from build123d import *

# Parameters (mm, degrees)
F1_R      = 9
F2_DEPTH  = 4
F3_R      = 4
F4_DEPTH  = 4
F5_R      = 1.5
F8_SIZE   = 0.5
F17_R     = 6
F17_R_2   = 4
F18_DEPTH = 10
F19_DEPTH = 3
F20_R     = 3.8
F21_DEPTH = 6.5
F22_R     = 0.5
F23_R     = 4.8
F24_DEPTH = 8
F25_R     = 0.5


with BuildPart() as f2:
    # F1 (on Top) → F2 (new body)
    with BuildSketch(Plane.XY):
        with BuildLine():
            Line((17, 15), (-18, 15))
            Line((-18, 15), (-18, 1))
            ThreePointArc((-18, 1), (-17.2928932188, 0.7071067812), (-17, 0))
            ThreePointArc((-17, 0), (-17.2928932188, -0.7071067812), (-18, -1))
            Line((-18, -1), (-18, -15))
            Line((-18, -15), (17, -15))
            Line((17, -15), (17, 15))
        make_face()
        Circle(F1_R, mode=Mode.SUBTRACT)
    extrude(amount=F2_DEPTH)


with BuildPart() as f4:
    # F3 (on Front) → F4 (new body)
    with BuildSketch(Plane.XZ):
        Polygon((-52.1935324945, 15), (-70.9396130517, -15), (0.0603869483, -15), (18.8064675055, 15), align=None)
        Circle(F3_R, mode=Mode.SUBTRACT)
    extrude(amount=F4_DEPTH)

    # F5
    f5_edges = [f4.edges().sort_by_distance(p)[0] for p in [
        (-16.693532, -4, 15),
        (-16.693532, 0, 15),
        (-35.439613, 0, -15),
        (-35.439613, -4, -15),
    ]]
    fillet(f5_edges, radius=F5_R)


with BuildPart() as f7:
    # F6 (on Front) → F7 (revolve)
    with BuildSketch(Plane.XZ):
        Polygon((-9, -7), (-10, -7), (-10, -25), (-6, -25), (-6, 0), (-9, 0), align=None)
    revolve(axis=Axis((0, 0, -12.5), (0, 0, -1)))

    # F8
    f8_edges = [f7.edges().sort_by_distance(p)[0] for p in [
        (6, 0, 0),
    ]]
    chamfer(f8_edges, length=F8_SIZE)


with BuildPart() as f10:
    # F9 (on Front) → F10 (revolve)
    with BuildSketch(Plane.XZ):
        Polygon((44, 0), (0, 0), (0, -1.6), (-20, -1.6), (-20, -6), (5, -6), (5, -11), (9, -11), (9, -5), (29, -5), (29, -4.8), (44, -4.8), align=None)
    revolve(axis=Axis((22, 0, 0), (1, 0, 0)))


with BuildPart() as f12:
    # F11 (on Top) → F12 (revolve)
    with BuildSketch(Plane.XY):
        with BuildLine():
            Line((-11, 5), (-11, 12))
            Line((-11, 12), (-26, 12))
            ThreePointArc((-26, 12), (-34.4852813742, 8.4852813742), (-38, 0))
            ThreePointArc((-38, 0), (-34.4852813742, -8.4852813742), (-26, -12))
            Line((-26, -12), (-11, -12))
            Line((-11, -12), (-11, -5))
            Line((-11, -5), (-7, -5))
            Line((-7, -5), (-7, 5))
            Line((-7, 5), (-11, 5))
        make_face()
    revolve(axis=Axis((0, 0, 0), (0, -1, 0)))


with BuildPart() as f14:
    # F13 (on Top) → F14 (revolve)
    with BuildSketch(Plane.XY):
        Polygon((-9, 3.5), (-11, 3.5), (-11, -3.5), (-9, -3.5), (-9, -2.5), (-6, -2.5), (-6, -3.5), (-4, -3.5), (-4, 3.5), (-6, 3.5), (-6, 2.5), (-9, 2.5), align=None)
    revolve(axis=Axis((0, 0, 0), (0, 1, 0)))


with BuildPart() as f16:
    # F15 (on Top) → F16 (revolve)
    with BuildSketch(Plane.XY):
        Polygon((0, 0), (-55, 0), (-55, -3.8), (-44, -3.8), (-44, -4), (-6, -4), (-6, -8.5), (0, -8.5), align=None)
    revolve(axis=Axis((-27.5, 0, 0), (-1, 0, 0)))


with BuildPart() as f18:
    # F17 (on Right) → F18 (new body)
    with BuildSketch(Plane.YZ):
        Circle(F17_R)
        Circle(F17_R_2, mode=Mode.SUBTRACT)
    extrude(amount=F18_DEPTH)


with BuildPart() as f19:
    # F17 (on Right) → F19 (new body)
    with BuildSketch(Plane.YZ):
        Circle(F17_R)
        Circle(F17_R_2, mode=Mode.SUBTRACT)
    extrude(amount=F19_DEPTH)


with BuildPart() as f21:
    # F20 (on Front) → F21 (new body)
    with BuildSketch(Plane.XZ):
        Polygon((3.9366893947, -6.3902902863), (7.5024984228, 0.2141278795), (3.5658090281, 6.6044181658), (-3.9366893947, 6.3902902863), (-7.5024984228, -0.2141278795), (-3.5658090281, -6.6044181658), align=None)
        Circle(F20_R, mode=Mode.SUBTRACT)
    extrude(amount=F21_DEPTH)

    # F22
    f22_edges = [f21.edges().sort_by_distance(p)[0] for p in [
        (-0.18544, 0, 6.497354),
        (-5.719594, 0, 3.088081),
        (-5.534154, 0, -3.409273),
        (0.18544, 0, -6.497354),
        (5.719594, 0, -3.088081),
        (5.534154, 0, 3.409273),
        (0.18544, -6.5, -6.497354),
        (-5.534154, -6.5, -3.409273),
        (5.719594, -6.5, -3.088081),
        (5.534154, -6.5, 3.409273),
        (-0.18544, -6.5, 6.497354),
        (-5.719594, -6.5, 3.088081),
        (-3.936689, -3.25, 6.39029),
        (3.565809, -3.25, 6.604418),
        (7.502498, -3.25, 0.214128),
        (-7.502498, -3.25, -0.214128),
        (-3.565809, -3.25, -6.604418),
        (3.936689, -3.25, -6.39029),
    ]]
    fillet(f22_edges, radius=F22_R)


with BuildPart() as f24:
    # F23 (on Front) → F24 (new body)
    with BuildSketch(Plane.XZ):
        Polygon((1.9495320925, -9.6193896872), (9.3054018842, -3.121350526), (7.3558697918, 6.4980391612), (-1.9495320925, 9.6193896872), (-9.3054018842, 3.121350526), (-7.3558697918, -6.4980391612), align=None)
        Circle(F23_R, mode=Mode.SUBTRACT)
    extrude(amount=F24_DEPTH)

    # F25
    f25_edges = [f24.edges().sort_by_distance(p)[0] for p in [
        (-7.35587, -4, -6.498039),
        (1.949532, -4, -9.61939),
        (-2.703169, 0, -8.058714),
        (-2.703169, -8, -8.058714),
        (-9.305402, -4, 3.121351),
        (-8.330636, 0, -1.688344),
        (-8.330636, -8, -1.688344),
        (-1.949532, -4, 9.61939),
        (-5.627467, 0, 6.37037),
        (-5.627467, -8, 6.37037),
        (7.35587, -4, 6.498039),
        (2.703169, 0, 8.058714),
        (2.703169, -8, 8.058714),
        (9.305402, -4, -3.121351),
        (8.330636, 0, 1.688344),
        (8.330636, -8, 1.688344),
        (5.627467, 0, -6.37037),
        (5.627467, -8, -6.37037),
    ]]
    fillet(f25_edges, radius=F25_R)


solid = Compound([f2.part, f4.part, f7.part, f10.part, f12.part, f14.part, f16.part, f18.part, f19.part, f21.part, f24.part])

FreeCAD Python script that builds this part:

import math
import FreeCAD as App
import Part
import Sketcher

V = App.Vector
Q = App.Units.Quantity


def edges_at(feature, points):
    """Names of the edges that pass closest to the given points."""
    edges = feature.Shape.Edges
    near = lambda p: min(range(len(edges)), key=lambda i: edges[i].distToShape(Part.Vertex(*p))[0])
    return sorted({f"Edge{near(p) + 1}" for p in points})

doc = App.newDocument("Part")
body = doc.addObject("PartDesign::Body", "Body")

sketch1 = body.newObject("Sketcher::SketchObject", "Sketch")
sketch1.AttachmentSupport = (doc.getObject("XY_Plane"), [""])
sketch1.MapMode = "FlatFace"
sketch1.addGeometry([
    Part.LineSegment(V(17, 15, 0), V(-18, 15, 0)),
    Part.LineSegment(V(-18, 15, 0), V(-18, 1, 0)),
    Part.ArcOfCircle(Part.Circle(V(-18, 0, 0), V(0, 0, 1), 1), math.radians(0), math.radians(90)),
    Part.ArcOfCircle(Part.Circle(V(-18, 0, 0), V(0, 0, 1), 1), math.radians(-90), math.radians(0)),
    Part.LineSegment(V(-18, -1, 0), V(-18, -15, 0)),
    Part.LineSegment(V(-18, -15, 0), V(17, -15, 0)),
    Part.LineSegment(V(17, -15, 0), V(17, 15, 0)),
    Part.Circle(V(0, 0, 0), V(0, 0, 1), 9),
], False)
sketch1.addConstraint([
    Sketcher.Constraint("Coincident", 0, 2, 1, 1),
    Sketcher.Constraint("Coincident", 1, 2, 2, 2),
    Sketcher.Constraint("Tangent", 2, 1, 3, 2),
    Sketcher.Constraint("Coincident", 3, 1, 4, 1),
    Sketcher.Constraint("Coincident", 4, 2, 5, 1),
    Sketcher.Constraint("Coincident", 5, 2, 6, 1),
    Sketcher.Constraint("Coincident", 6, 2, 0, 1),
    Sketcher.Constraint("Horizontal", 0),
    Sketcher.Constraint("Vertical", 1),
    Sketcher.Constraint("Vertical", 4),
    Sketcher.Constraint("Horizontal", 5),
    Sketcher.Constraint("Vertical", 6),
    Sketcher.Constraint("Coincident", 7, 3, -1, 1),
    Sketcher.Constraint("Equal", 2, 3),
    Sketcher.Constraint("Symmetric", 1, 2, 3, 1, -1),
    Sketcher.Constraint("PointOnObject", 2, 1, -1),
    Sketcher.Constraint("Vertical", 3, 3, 0, 2),
    Sketcher.Constraint("Equal", 1, 4),
    Sketcher.Constraint("Diameter", 7, 18.0),
    Sketcher.Constraint("Radius", 2, 1.0),
    Sketcher.Constraint("DistanceX", 0, 2, 0, 1, 35.0),
    Sketcher.Constraint("DistanceY", 1, 2, 1, 1, 14.0),
    Sketcher.Constraint("DistanceX", 2, 3, -1, 1, 18.0),
])
pad1 = body.newObject("PartDesign::Pad", "Pad")
pad1.Profile = sketch1
pad1.Length = 4
body2 = doc.addObject("PartDesign::Body", "Body001")

sketch2 = body2.newObject("Sketcher::SketchObject", "Sketch001")
sketch2.AttachmentSupport = (doc.getObject("XZ_Plane001"), [""])
sketch2.MapMode = "FlatFace"
sketch2.addGeometry([
    Part.LineSegment(V(-52.193532, 15, 0), V(-70.939613, -15, 0)),
    Part.LineSegment(V(-70.939613, -15, 0), V(0.060387, -15, 0)),
    Part.LineSegment(V(0.060387, -15, 0), V(18.806468, 15, 0)),
    Part.LineSegment(V(18.806468, 15, 0), V(-52.193532, 15, 0)),
    Part.Circle(V(0, 0, 0), V(0, 0, 1), 4),
], False)
sketch2.addConstraint([
    Sketcher.Constraint("Coincident", 0, 2, 1, 1),
    Sketcher.Constraint("Coincident", 1, 2, 2, 1),
    Sketcher.Constraint("Coincident", 2, 2, 3, 1),
    Sketcher.Constraint("Coincident", 3, 2, 0, 1),
    Sketcher.Constraint("Horizontal", 1),
    Sketcher.Constraint("Horizontal", 3),
    Sketcher.Constraint("Coincident", 4, 3, -1, 1),
    Sketcher.Constraint("Parallel", 0, 2),
    Sketcher.Constraint("Diameter", 4, 8.0),
    Sketcher.Constraint("DistanceX", 1, 1, 1, 2, 71.0),
    Sketcher.Constraint("Angle", 0, Q("-122 deg")),
    Sketcher.Constraint("DistanceY", 0, 2, -1, 1, 15.0),
    Sketcher.Constraint("DistanceY", -1, 1, 2, 2, 15.0),
    Sketcher.Constraint("DistanceX", 0, 2, -1, 1, 70.939613),
])
pad2 = body2.newObject("PartDesign::Pad", "Pad001")
pad2.Profile = sketch2
pad2.Length = 4
doc.recompute()

fillet = body2.newObject("PartDesign::Fillet", "Fillet")
fillet.Base = (pad2, edges_at(pad2, [
    (-16.694, -4, 15),
    (-16.694, 0, 15),
    (-35.44, 0, -15),
    (-35.44, -4, -15),
]))
fillet.Radius = 1.5
body3 = doc.addObject("PartDesign::Body", "Body002")

sketch3 = body3.newObject("Sketcher::SketchObject", "Sketch002")
sketch3.AttachmentSupport = (doc.getObject("XZ_Plane002"), [""])
sketch3.MapMode = "FlatFace"
sketch3.addGeometry([
    Part.LineSegment(V(-9, -7, 0), V(-10, -7, 0)),
    Part.LineSegment(V(-10, -7, 0), V(-10, -25, 0)),
    Part.LineSegment(V(-10, -25, 0), V(-6, -25, 0)),
    Part.LineSegment(V(-6, -25, 0), V(-6, 0, 0)),
    Part.LineSegment(V(-6, 0, 0), V(-9, 0, 0)),
    Part.LineSegment(V(-9, 0, 0), V(-9, -7, 0)),
], False)
sketch3.addConstraint([
    Sketcher.Constraint("Coincident", 0, 2, 1, 1),
    Sketcher.Constraint("Coincident", 1, 2, 2, 1),
    Sketcher.Constraint("Coincident", 2, 2, 3, 1),
    Sketcher.Constraint("Coincident", 3, 2, 4, 1),
    Sketcher.Constraint("Coincident", 4, 2, 5, 1),
    Sketcher.Constraint("Coincident", 5, 2, 0, 1),
    Sketcher.Constraint("Horizontal", 0),
    Sketcher.Constraint("Vertical", 1),
    Sketcher.Constraint("Horizontal", 2),
    Sketcher.Constraint("Vertical", 3),
    Sketcher.Constraint("Horizontal", 4),
    Sketcher.Constraint("Vertical", 5),
    Sketcher.Constraint("PointOnObject", 3, 2, -1),
    Sketcher.Constraint("DistanceX", 0, 2, 0, 1, 1.0),
    Sketcher.Constraint("DistanceX", 2, 1, 2, 2, 4.0),
    Sketcher.Constraint("DistanceY", 1, 2, 1, 1, 18.0),
    Sketcher.Constraint("DistanceY", 3, 1, 3, 2, 25.0),
    Sketcher.Constraint("DistanceX", 0, 2, -1, 1, 10.0),
])
revolution = body3.newObject("PartDesign::Revolution", "Revolution")
revolution.Profile = sketch3
revolution.ReferenceAxis = (sketch3, ["V_Axis"])
revolution.Angle = 360
doc.recompute()

chamfer = body3.newObject("PartDesign::Chamfer", "Chamfer")
chamfer.Base = (revolution, edges_at(revolution, [(6, 0, 0)]))
chamfer.Size = 0.5
body4 = doc.addObject("PartDesign::Body", "Body003")

sketch4 = body4.newObject("Sketcher::SketchObject", "Sketch003")
sketch4.AttachmentSupport = (doc.getObject("XZ_Plane003"), [""])
sketch4.MapMode = "FlatFace"
sketch4.addGeometry([
    Part.LineSegment(V(44, 0, 0), V(0, 0, 0)),
    Part.LineSegment(V(0, 0, 0), V(0, -1.6, 0)),
    Part.LineSegment(V(0, -1.6, 0), V(-20, -1.6, 0)),
    Part.LineSegment(V(-20, -1.6, 0), V(-20, -6, 0)),
    Part.LineSegment(V(-20, -6, 0), V(5, -6, 0)),
    Part.LineSegment(V(5, -6, 0), V(5, -11, 0)),
    Part.LineSegment(V(5, -11, 0), V(9, -11, 0)),
    Part.LineSegment(V(9, -11, 0), V(9, -5, 0)),
    Part.LineSegment(V(9, -5, 0), V(29, -5, 0)),
    Part.LineSegment(V(29, -5, 0), V(29, -4.8, 0)),
    Part.LineSegment(V(29, -4.8, 0), V(44, -4.8, 0)),
    Part.LineSegment(V(44, -4.8, 0), V(44, 0, 0)),
], False)
sketch4.addConstraint([
    Sketcher.Constraint("Coincident", 0, 2, 1, 1),
    Sketcher.Constraint("Coincident", 1, 2, 2, 1),
    Sketcher.Constraint("Coincident", 2, 2, 3, 1),
    Sketcher.Constraint("Coincident", 3, 2, 4, 1),
    Sketcher.Constraint("Coincident", 4, 2, 5, 1),
    Sketcher.Constraint("Coincident", 5, 2, 6, 1),
    Sketcher.Constraint("Coincident", 6, 2, 7, 1),
    Sketcher.Constraint("Coincident", 7, 2, 8, 1),
    Sketcher.Constraint("Coincident", 8, 2, 9, 1),
    Sketcher.Constraint("Coincident", 9, 2, 10, 1),
    Sketcher.Constraint("Coincident", 10, 2, 11, 1),
    Sketcher.Constraint("Coincident", 11, 2, 0, 1),
    Sketcher.Constraint("Horizontal", 0),
    Sketcher.Constraint("Vertical", 1),
    Sketcher.Constraint("Horizontal", 2),
    Sketcher.Constraint("Vertical", 3),
    Sketcher.Constraint("Horizontal", 4),
    Sketcher.Constraint("Vertical", 5),
    Sketcher.Constraint("Horizontal", 6),
    Sketcher.Constraint("Vertical", 7),
    Sketcher.Constraint("Horizontal", 8),
    Sketcher.Constraint("Vertical", 9),
    Sketcher.Constraint("Horizontal", 10),
    Sketcher.Constraint("Vertical", 11),
    Sketcher.Constraint("Coincident", 0, 2, -1, 1),
    Sketcher.Constraint("Equal", 2, 8),
    Sketcher.Constraint("DistanceX", 0, 2, 0, 1, 44.0),
    Sketcher.Constraint("DistanceX", 2, 2, 2, 1, 20.0),
    Sketcher.Constraint("DistanceX", 4, 1, 4, 2, 25.0),
    Sketcher.Constraint("DistanceX", 6, 1, 6, 2, 4.0),
    Sketcher.Constraint("DistanceY", 5, 2, 5, 1, 5.0),
    Sketcher.Constraint("DistanceY", 7, 1, 7, 2, 6.0),
    Sketcher.Constraint("DistanceY", 1, 2, 1, 1, 1.6),
    Sketcher.Constraint("DistanceY", 3, 2, 3, 1, 4.4),
    Sketcher.Constraint("DistanceY", 9, 1, 9, 2, 0.2),
])
revolution2 = body4.newObject("PartDesign::Revolution", "Revolution001")
revolution2.Profile = sketch4
revolution2.ReferenceAxis = (sketch4, ["H_Axis"])
revolution2.Angle = 360
body5 = doc.addObject("PartDesign::Body", "Body004")

sketch5 = body5.newObject("Sketcher::SketchObject", "Sketch004")
sketch5.AttachmentSupport = (doc.getObject("XY_Plane004"), [""])
sketch5.MapMode = "FlatFace"
sketch5.addGeometry([
    Part.LineSegment(V(-11, 5, 0), V(-11, 12, 0)),
    Part.LineSegment(V(-11, 12, 0), V(-26, 12, 0)),
    Part.ArcOfCircle(Part.Circle(V(-26, 0, 0), V(0, 0, 1), 12), math.radians(90), math.radians(180)),
    Part.ArcOfCircle(Part.Circle(V(-26, 0, 0), V(0, 0, 1), 12), math.radians(180), math.radians(270)),
    Part.LineSegment(V(-26, -12, 0), V(-11, -12, 0)),
    Part.LineSegment(V(-11, -12, 0), V(-11, -5, 0)),
    Part.LineSegment(V(-11, -5, 0), V(-7, -5, 0)),
    Part.LineSegment(V(-7, -5, 0), V(-7, 5, 0)),
    Part.LineSegment(V(-7, 5, 0), V(-11, 5, 0)),
], False)
sketch5.addConstraint([
    Sketcher.Constraint("Coincident", 0, 2, 1, 1),
    Sketcher.Constraint("Tangent", 1, 2, 2, 1),
    Sketcher.Constraint("Tangent", 2, 2, 3, 1),
    Sketcher.Constraint("Tangent", 3, 2, 4, 1),
    Sketcher.Constraint("Coincident", 4, 2, 5, 1),
    Sketcher.Constraint("Coincident", 5, 2, 6, 1),
    Sketcher.Constraint("Coincident", 6, 2, 7, 1),
    Sketcher.Constraint("Coincident", 7, 2, 8, 1),
    Sketcher.Constraint("Coincident", 8, 2, 0, 1),
    Sketcher.Constraint("Vertical", 0),
    Sketcher.Constraint("Horizontal", 1),
    Sketcher.Constraint("Horizontal", 4),
    Sketcher.Constraint("Vertical", 5),
    Sketcher.Constraint("Horizontal", 6),
    Sketcher.Constraint("Vertical", 7),
    Sketcher.Constraint("Horizontal", 8),
    Sketcher.Constraint("Equal", 2, 3),
    Sketcher.Constraint("Symmetric", 0, 2, 4, 2, -1),
    Sketcher.Constraint("PointOnObject", 2, 2, -1),
    Sketcher.Constraint("Equal", 0, 5),
    Sketcher.Constraint("Radius", 2, 12.0),
    Sketcher.Constraint("DistanceX", 1, 2, 1, 1, 15.0),
    Sketcher.Constraint("DistanceX", 6, 1, 6, 2, 4.0),
    Sketcher.Constraint("DistanceY", 0, 1, 0, 2, 7.0),
    Sketcher.Constraint("DistanceX", 2, 3, -1, 1, 26.0),
])
revolution3 = body5.newObject("PartDesign::Revolution", "Revolution002")
revolution3.Profile = sketch5
revolution3.ReferenceAxis = (sketch5, ["V_Axis"])
revolution3.Angle = 360
body6 = doc.addObject("PartDesign::Body", "Body005")

sketch6 = body6.newObject("Sketcher::SketchObject", "Sketch005")
sketch6.AttachmentSupport = (doc.getObject("XY_Plane005"), [""])
sketch6.MapMode = "FlatFace"
sketch6.addGeometry([
    Part.LineSegment(V(-9, 3.5, 0), V(-11, 3.5, 0)),
    Part.LineSegment(V(-11, 3.5, 0), V(-11, -3.5, 0)),
    Part.LineSegment(V(-11, -3.5, 0), V(-9, -3.5, 0)),
    Part.LineSegment(V(-9, -3.5, 0), V(-9, -2.5, 0)),
    Part.LineSegment(V(-9, -2.5, 0), V(-6, -2.5, 0)),
    Part.LineSegment(V(-6, -2.5, 0), V(-6, -3.5, 0)),
    Part.LineSegment(V(-6, -3.5, 0), V(-4, -3.5, 0)),
    Part.LineSegment(V(-4, -3.5, 0), V(-4, 3.5, 0)),
    Part.LineSegment(V(-4, 3.5, 0), V(-6, 3.5, 0)),
    Part.LineSegment(V(-6, 3.5, 0), V(-6, 2.5, 0)),
    Part.LineSegment(V(-6, 2.5, 0), V(-9, 2.5, 0)),
    Part.LineSegment(V(-9, 2.5, 0), V(-9, 3.5, 0)),
], False)
sketch6.addConstraint([
    Sketcher.Constraint("Coincident", 0, 2, 1, 1),
    Sketcher.Constraint("Coincident", 1, 2, 2, 1),
    Sketcher.Constraint("Coincident", 2, 2, 3, 1),
    Sketcher.Constraint("Coincident", 3, 2, 4, 1),
    Sketcher.Constraint("Coincident", 4, 2, 5, 1),
    Sketcher.Constraint("Coincident", 5, 2, 6, 1),
    Sketcher.Constraint("Coincident", 6, 2, 7, 1),
    Sketcher.Constraint("Coincident", 7, 2, 8, 1),
    Sketcher.Constraint("Coincident", 8, 2, 9, 1),
    Sketcher.Constraint("Coincident", 9, 2, 10, 1),
    Sketcher.Constraint("Coincident", 10, 2, 11, 1),
    Sketcher.Constraint("Coincident", 11, 2, 0, 1),
    Sketcher.Constraint("Horizontal", 0),
    Sketcher.Constraint("Vertical", 1),
    Sketcher.Constraint("Horizontal", 2),
    Sketcher.Constraint("Vertical", 3),
    Sketcher.Constraint("Horizontal", 4),
    Sketcher.Constraint("Vertical", 5),
    Sketcher.Constraint("Horizontal", 6),
    Sketcher.Constraint("Vertical", 7),
    Sketcher.Constraint("Horizontal", 8),
    Sketcher.Constraint("Vertical", 9),
    Sketcher.Constraint("Horizontal", 10),
    Sketcher.Constraint("Vertical", 11),
    Sketcher.Constraint("Symmetric", 5, 2, 8, 2, -1),
    Sketcher.Constraint("Symmetric", 3, 2, 10, 2, -1),
    Sketcher.Constraint("Horizontal", 2, 2, 5, 2),
    Sketcher.Constraint("Horizontal", 0, 2, 7, 2),
    Sketcher.Constraint("Equal", 2, 6),
    Sketcher.Constraint("DistanceX", 0, 2, 0, 1, 2.0),
    Sketcher.Constraint("DistanceX", 4, 1, 4, 2, 3.0),
    Sketcher.Constraint("DistanceY", 1, 2, 1, 1, 7.0),
    Sketcher.Constraint("DistanceY", 3, 1, 3, 2, 1.0),
    Sketcher.Constraint("DistanceX", 0, 2, -1, 1, 11.0),
])
revolution4 = body6.newObject("PartDesign::Revolution", "Revolution003")
revolution4.Profile = sketch6
revolution4.ReferenceAxis = (sketch6, ["V_Axis"])
revolution4.Angle = 360
body7 = doc.addObject("PartDesign::Body", "Body006")

sketch7 = body7.newObject("Sketcher::SketchObject", "Sketch006")
sketch7.AttachmentSupport = (doc.getObject("XY_Plane006"), [""])
sketch7.MapMode = "FlatFace"
sketch7.addGeometry([
    Part.LineSegment(V(0, 0, 0), V(-55, 0, 0)),
    Part.LineSegment(V(-55, 0, 0), V(-55, -3.8, 0)),
    Part.LineSegment(V(-55, -3.8, 0), V(-44, -3.8, 0)),
    Part.LineSegment(V(-44, -3.8, 0), V(-44, -4, 0)),
    Part.LineSegment(V(-44, -4, 0), V(-6, -4, 0)),
    Part.LineSegment(V(-6, -4, 0), V(-6, -8.5, 0)),
    Part.LineSegment(V(-6, -8.5, 0), V(0, -8.5, 0)),
    Part.LineSegment(V(0, -8.5, 0), V(0, 0, 0)),
], False)
sketch7.addConstraint([
    Sketcher.Constraint("Coincident", 0, 2, 1, 1),
    Sketcher.Constraint("Coincident", 1, 2, 2, 1),
    Sketcher.Constraint("Coincident", 2, 2, 3, 1),
    Sketcher.Constraint("Coincident", 3, 2, 4, 1),
    Sketcher.Constraint("Coincident", 4, 2, 5, 1),
    Sketcher.Constraint("Coincident", 5, 2, 6, 1),
    Sketcher.Constraint("Coincident", 6, 2, 7, 1),
    Sketcher.Constraint("Coincident", 7, 2, 0, 1),
    Sketcher.Constraint("Horizontal", 0),
    Sketcher.Constraint("Vertical", 1),
    Sketcher.Constraint("Horizontal", 2),
    Sketcher.Constraint("Vertical", 3),
    Sketcher.Constraint("Horizontal", 4),
    Sketcher.Constraint("Vertical", 5),
    Sketcher.Constraint("Horizontal", 6),
    Sketcher.Constraint("Vertical", 7),
    Sketcher.Constraint("Coincident", 7, 2, -1, 1),
    Sketcher.Constraint("DistanceX", 0, 2, 0, 1, 55.0),
    Sketcher.Constraint("DistanceX", 2, 1, 2, 2, 11.0),
    Sketcher.Constraint("DistanceX", 4, 1, 4, 2, 38.0),
    Sketcher.Constraint("DistanceY", 1, 2, 1, 1, 3.8),
    Sketcher.Constraint("DistanceY", 3, 2, 3, 1, 0.2),
    Sketcher.Constraint("DistanceY", 5, 2, 5, 1, 4.5),
])
revolution5 = body7.newObject("PartDesign::Revolution", "Revolution004")
revolution5.Profile = sketch7
revolution5.ReferenceAxis = (sketch7, ["H_Axis"])
revolution5.Angle = 360
body8 = doc.addObject("PartDesign::Body", "Body007")

sketch8 = body8.newObject("Sketcher::SketchObject", "Sketch007")
sketch8.AttachmentSupport = (doc.getObject("YZ_Plane007"), [""])
sketch8.MapMode = "FlatFace"
sketch8.addGeometry([
    Part.Circle(V(0, 0, 0), V(0, 0, 1), 6),
    Part.Circle(V(0, 0, 0), V(0, 0, 1), 4),
], False)
sketch8.addConstraint([
    Sketcher.Constraint("Coincident", 0, 3, -1, 1),
    Sketcher.Constraint("Coincident", 1, 3, -1, 1),
    Sketcher.Constraint("Diameter", 0, 12.0),
    Sketcher.Constraint("Diameter", 1, 8.0),
])
pad3 = body8.newObject("PartDesign::Pad", "Pad002")
pad3.Profile = sketch8
pad3.Length = 10
body9 = doc.addObject("PartDesign::Body", "Body008")

sketch9 = body9.newObject("Sketcher::SketchObject", "Sketch008")
sketch9.AttachmentSupport = (doc.getObject("YZ_Plane008"), [""])
sketch9.MapMode = "FlatFace"
sketch9.addGeometry([
    Part.Circle(V(0, 0, 0), V(0, 0, 1), 6),
    Part.Circle(V(0, 0, 0), V(0, 0, 1), 4),
], False)
sketch9.addConstraint([
    Sketcher.Constraint("Coincident", 0, 3, -1, 1),
    Sketcher.Constraint("Coincident", 1, 3, -1, 1),
    Sketcher.Constraint("Diameter", 0, 12.0),
    Sketcher.Constraint("Diameter", 1, 8.0),
])
pad4 = body9.newObject("PartDesign::Pad", "Pad003")
pad4.Profile = sketch9
pad4.Length = 3
body10 = doc.addObject("PartDesign::Body", "Body009")

sketch10 = body10.newObject("Sketcher::SketchObject", "Sketch009")
sketch10.AttachmentSupport = (doc.getObject("XZ_Plane009"), [""])
sketch10.MapMode = "FlatFace"
sketch10.addGeometry([
    Part.LineSegment(V(3.936689, -6.39029, 0), V(7.502498, 0.214128, 0)),
    Part.LineSegment(V(7.502498, 0.214128, 0), V(3.565809, 6.604418, 0)),
    Part.LineSegment(V(3.565809, 6.604418, 0), V(-3.936689, 6.39029, 0)),
    Part.LineSegment(V(-3.936689, 6.39029, 0), V(-7.502498, -0.214128, 0)),
    Part.LineSegment(V(-7.502498, -0.214128, 0), V(-3.565809, -6.604418, 0)),
    Part.LineSegment(V(-3.565809, -6.604418, 0), V(3.936689, -6.39029, 0)),
    Part.Circle(V(0, 0, 0), V(0, 0, 1), 3.8),
], False)
sketch10.addConstraint([
    Sketcher.Constraint("Coincident", 0, 2, 1, 1),
    Sketcher.Constraint("Coincident", 1, 2, 2, 1),
    Sketcher.Constraint("Coincident", 2, 2, 3, 1),
    Sketcher.Constraint("Coincident", 3, 2, 4, 1),
    Sketcher.Constraint("Coincident", 4, 2, 5, 1),
    Sketcher.Constraint("Coincident", 5, 2, 0, 1),
    Sketcher.Constraint("Coincident", 6, 3, -1, 1),
    Sketcher.Constraint("Symmetric", 0, 2, 3, 2, -1, 1),
    Sketcher.Constraint("Symmetric", 1, 2, 4, 2, -1, 1),
    Sketcher.Constraint("Symmetric", 2, 2, 5, 2, -1, 1),
    Sketcher.Constraint("Equal", 0, 1),
    Sketcher.Constraint("Equal", 1, 2),
    Sketcher.Constraint("Diameter", 6, 7.6),
    Sketcher.Constraint("DistanceX", -1, 1, 0, 2, 7.502498),
    Sketcher.Constraint("DistanceX", 2, 2, 1, 2, 7.502498),
    Sketcher.Constraint("DistanceX", -1, 1, 1, 2, 3.565809),
    Sketcher.Constraint("DistanceY", -1, 1, 1, 2, 6.604418),
])
pad5 = body10.newObject("PartDesign::Pad", "Pad004")
pad5.Profile = sketch10
pad5.Length = 6.5
doc.recompute()

fillet2 = body10.newObject("PartDesign::Fillet", "Fillet001")
fillet2.Base = (pad5, edges_at(pad5, [
    (-0.185, 0, 6.497),
    (-5.72, 0, 3.088),
    (-5.534, 0, -3.409),
    (0.185, 0, -6.497),
    (5.72, 0, -3.088),
    (5.534, 0, 3.409),
    (0.185, -6.5, -6.497),
    (-5.534, -6.5, -3.409),
    (5.72, -6.5, -3.088),
    (5.534, -6.5, 3.409),
    (-0.185, -6.5, 6.497),
    (-5.72, -6.5, 3.088),
    (-3.937, -3.25, 6.39),
    (3.566, -3.25, 6.604),
    (7.502, -3.25, 0.214),
    (-7.502, -3.25, -0.214),
    (-3.566, -3.25, -6.604),
    (3.937, -3.25, -6.39),
]))
fillet2.Radius = 0.5
body11 = doc.addObject("PartDesign::Body", "Body010")

sketch11 = body11.newObject("Sketcher::SketchObject", "Sketch010")
sketch11.AttachmentSupport = (doc.getObject("XZ_Plane010"), [""])
sketch11.MapMode = "FlatFace"
sketch11.addGeometry([
    Part.LineSegment(V(1.949532, -9.61939, 0), V(9.305402, -3.121351, 0)),
    Part.LineSegment(V(9.305402, -3.121351, 0), V(7.35587, 6.498039, 0)),
    Part.LineSegment(V(7.35587, 6.498039, 0), V(-1.949532, 9.61939, 0)),
    Part.LineSegment(V(-1.949532, 9.61939, 0), V(-9.305402, 3.121351, 0)),
    Part.LineSegment(V(-9.305402, 3.121351, 0), V(-7.35587, -6.498039, 0)),
    Part.LineSegment(V(-7.35587, -6.498039, 0), V(1.949532, -9.61939, 0)),
    Part.Circle(V(0, 0, 0), V(0, 0, 1), 4.8),
], False)
sketch11.addConstraint([
    Sketcher.Constraint("Coincident", 0, 2, 1, 1),
    Sketcher.Constraint("Coincident", 1, 2, 2, 1),
    Sketcher.Constraint("Coincident", 2, 2, 3, 1),
    Sketcher.Constraint("Coincident", 3, 2, 4, 1),
    Sketcher.Constraint("Coincident", 4, 2, 5, 1),
    Sketcher.Constraint("Coincident", 5, 2, 0, 1),
    Sketcher.Constraint("Coincident", 6, 3, -1, 1),
    Sketcher.Constraint("Symmetric", 0, 2, 3, 2, -1, 1),
    Sketcher.Constraint("Symmetric", 1, 2, 4, 2, -1, 1),
    Sketcher.Constraint("Symmetric", 2, 2, 5, 2, -1, 1),
    Sketcher.Constraint("Equal", 0, 1),
    Sketcher.Constraint("Equal", 1, 2),
    Sketcher.Constraint("Diameter", 6, 9.6),
    Sketcher.Constraint("DistanceX", -1, 1, 0, 2, 9.305402),
    Sketcher.Constraint("DistanceX", 2, 2, 1, 2, 9.305402),
    Sketcher.Constraint("DistanceY", 0, 2, 3, 2, 6.242701),
    Sketcher.Constraint("DistanceX", -1, 1, 1, 2, 7.35587),
])
pad6 = body11.newObject("PartDesign::Pad", "Pad005")
pad6.Profile = sketch11
pad6.Length = 8
doc.recompute()

fillet3 = body11.newObject("PartDesign::Fillet", "Fillet002")
fillet3.Base = (pad6, edges_at(pad6, [
    (-7.356, -4, -6.498),
    (1.95, -4, -9.619),
    (-2.703, 0, -8.059),
    (-2.703, -8, -8.059),
    (-9.305, -4, 3.121),
    (-8.331, 0, -1.688),
    (-8.331, -8, -1.688),
    (-1.95, -4, 9.619),
    (-5.627, 0, 6.37),
    (-5.627, -8, 6.37),
    (7.356, -4, 6.498),
    (2.703, 0, 8.059),
    (2.703, -8, 8.059),
    (9.305, -4, -3.121),
    (8.331, 0, 1.688),
    (8.331, -8, 1.688),
    (5.627, 0, -6.37),
    (5.627, -8, -6.37),
]))
fillet3.Radius = 0.5

doc.recompute()
